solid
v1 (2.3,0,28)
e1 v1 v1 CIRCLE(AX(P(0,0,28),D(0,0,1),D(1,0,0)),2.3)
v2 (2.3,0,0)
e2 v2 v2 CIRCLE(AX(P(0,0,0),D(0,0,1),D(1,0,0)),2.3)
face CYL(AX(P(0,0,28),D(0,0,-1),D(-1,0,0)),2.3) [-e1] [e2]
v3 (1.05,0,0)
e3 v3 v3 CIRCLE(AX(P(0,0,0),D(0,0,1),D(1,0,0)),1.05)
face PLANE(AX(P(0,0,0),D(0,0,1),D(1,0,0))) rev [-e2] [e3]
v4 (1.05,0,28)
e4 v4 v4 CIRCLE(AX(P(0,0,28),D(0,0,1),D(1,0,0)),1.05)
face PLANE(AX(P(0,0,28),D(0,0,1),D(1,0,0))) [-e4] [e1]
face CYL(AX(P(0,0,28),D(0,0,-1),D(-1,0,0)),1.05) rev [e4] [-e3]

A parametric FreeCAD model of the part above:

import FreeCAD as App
import Part
import Sketcher

doc = App.newDocument("Part")
params = doc.addObject("Spreadsheet::Sheet", "Params")
for row, (alias, value) in enumerate([
    ("sketch1_diameter", "4.6 mm"),
    ("sketch1_diameter2", "2.1 mm"),
    ("pad1_length", "28 mm"),
], start=1):
    params.set(f"A{row}", alias)
    params.set(f"B{row}", "=" + value)
    params.setAlias(f"B{row}", alias)

body = doc.addObject("PartDesign::Body", "Body")

sketch1 = doc.addObject("Sketcher::SketchObject", "Sketch")
body.addObject(sketch1)
sketch1.AttachmentSupport = (doc.XY_Plane, [""])
sketch1.MapMode = "FlatFace"
sketch1.addGeometry(Part.Circle(App.Vector(0, 0, 0), App.Vector(0, 0, 1), 2.3), False)
sketch1.addGeometry(Part.Circle(App.Vector(0, 0, 0), App.Vector(0, 0, 1), 1.1), False)
sketch1.addConstraint(Sketcher.Constraint("Coincident", 0, 3, -1, 1))
sketch1.addConstraint(Sketcher.Constraint("Coincident", 1, 3, -1, 1))
sketch1.addConstraint(Sketcher.Constraint("Diameter", 0, 4.6))
sketch1.addConstraint(Sketcher.Constraint("Diameter", 1, 2.1))
sketch1.setExpression("Constraints[2]", "Params.sketch1_diameter")
sketch1.setExpression("Constraints[3]", "Params.sketch1_diameter2")
pad1 = doc.addObject("PartDesign::Pad", "Pad")
body.addObject(pad1)
pad1.Profile = sketch1
pad1.setExpression("Length", "Params.pad1_length")

doc.recompute()
